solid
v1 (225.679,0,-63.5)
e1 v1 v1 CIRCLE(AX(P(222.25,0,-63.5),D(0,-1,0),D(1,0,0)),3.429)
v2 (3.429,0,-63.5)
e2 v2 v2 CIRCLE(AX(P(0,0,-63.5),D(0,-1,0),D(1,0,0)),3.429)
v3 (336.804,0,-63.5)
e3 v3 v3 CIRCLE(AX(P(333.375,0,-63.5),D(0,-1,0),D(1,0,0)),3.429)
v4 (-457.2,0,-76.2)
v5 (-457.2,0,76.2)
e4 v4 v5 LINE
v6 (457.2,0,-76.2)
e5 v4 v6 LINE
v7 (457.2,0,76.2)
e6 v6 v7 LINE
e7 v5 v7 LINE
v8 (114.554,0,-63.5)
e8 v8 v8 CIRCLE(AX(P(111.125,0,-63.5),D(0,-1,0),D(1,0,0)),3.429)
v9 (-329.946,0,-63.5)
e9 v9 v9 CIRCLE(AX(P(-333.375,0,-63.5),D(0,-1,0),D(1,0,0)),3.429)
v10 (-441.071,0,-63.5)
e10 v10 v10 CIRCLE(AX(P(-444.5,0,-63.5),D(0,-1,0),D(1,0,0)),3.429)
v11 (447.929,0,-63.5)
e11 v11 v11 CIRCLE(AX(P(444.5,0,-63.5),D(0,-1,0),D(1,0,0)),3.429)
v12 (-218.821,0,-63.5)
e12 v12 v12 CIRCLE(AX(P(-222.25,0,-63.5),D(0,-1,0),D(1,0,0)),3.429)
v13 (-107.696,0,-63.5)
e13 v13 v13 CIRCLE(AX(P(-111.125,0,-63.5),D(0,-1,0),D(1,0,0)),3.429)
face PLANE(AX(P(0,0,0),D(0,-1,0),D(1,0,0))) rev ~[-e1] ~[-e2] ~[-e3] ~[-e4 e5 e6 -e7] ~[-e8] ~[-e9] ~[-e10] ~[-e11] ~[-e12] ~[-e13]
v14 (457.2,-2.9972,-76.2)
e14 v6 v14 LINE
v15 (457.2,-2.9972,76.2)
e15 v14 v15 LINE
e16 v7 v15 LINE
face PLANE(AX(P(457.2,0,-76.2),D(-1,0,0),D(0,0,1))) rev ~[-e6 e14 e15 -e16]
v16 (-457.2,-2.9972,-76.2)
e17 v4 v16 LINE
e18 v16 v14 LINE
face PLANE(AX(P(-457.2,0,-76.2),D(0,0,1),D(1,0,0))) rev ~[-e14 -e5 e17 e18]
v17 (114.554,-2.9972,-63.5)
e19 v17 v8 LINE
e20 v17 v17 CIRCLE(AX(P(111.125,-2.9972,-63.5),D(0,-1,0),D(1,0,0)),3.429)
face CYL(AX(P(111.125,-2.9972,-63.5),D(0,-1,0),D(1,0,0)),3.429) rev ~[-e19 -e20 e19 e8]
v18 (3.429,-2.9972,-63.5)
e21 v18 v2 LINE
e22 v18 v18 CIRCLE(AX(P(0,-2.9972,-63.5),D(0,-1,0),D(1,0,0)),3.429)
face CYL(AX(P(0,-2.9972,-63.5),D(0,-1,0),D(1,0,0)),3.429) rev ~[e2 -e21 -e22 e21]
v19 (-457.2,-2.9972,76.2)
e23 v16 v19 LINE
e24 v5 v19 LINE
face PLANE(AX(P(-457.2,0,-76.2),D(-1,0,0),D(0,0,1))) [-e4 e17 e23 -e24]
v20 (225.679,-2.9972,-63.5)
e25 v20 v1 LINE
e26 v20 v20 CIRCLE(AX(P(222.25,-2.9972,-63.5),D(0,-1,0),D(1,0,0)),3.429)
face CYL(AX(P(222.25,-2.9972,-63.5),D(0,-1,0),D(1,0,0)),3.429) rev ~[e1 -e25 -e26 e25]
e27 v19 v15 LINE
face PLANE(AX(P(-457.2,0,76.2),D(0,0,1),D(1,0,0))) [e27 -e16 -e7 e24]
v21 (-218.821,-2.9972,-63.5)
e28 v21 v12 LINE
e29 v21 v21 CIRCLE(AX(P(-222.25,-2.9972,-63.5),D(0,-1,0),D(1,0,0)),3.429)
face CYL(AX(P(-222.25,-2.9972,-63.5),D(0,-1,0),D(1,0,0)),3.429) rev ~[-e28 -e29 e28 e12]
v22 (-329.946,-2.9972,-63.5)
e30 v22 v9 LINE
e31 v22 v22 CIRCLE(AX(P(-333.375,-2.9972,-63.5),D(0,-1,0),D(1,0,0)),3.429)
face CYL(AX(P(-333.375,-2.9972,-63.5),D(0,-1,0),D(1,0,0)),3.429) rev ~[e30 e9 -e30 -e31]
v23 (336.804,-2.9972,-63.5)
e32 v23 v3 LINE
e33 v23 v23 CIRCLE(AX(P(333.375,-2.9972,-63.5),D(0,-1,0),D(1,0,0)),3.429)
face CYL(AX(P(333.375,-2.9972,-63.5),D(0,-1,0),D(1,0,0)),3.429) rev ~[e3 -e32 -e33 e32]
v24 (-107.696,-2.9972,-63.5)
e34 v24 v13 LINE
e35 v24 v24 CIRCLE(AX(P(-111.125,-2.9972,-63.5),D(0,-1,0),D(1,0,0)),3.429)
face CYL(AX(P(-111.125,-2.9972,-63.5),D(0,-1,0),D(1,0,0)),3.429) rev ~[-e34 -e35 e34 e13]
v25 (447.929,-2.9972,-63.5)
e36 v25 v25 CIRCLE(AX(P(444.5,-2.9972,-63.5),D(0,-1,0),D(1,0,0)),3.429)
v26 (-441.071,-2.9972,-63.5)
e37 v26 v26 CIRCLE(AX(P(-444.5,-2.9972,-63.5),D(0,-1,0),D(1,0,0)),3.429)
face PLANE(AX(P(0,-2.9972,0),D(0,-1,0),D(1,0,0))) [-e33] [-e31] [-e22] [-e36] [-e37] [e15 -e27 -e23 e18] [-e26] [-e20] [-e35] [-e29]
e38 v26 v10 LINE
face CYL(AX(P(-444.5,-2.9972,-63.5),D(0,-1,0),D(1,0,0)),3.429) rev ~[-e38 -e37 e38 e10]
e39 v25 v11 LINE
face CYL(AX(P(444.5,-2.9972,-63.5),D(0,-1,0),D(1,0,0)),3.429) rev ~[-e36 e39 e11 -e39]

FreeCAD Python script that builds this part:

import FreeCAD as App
import Part
import Sketcher
from FreeCAD import Vector
Q = App.Units.Quantity

doc = App.newDocument("Part")
params = doc.addObject("Spreadsheet::Sheet", "Params")
for row, (alias, value) in enumerate([
    ("sketch1_width", "36 in"),
    ("sketch1_height", "6 in"),
    ("pad1_length", "0.118 in"),
    ("sketch2_diameter", "0.27 in"),
], start=1):
    params.set(f"A{row}", alias)
    params.set(f"B{row}", "=" + value)
    params.setAlias(f"B{row}", alias)

body = doc.addObject("PartDesign::Body", "Body")

# Sketch on XZ plane
sketch1 = doc.addObject("Sketcher::SketchObject", "Sketch")
body.addObject(sketch1)
sketch1.AttachmentSupport = (doc.XZ_Plane, [""])
sketch1.MapMode = "FlatFace"
sketch1.addGeometry(Part.LineSegment(Vector(-457, 76, 0), Vector(-457, -76, 0)), False)
sketch1.addGeometry(Part.LineSegment(Vector(-457, -76, 0), Vector(457, -76, 0)), False)
sketch1.addGeometry(Part.LineSegment(Vector(457, -76, 0), Vector(457, 76, 0)), False)
sketch1.addGeometry(Part.LineSegment(Vector(457, 76, 0), Vector(-457, 76, 0)), False)
sketch1.addConstraint(Sketcher.Constraint("Coincident", 0, 2, 1, 1))
sketch1.addConstraint(Sketcher.Constraint("Coincident", 1, 2, 2, 1))
sketch1.addConstraint(Sketcher.Constraint("Coincident", 2, 2, 3, 1))
sketch1.addConstraint(Sketcher.Constraint("Coincident", 3, 2, 0, 1))
sketch1.addConstraint(Sketcher.Constraint("Vertical", 0))
sketch1.addConstraint(Sketcher.Constraint("Horizontal", 1))
sketch1.addConstraint(Sketcher.Constraint("Vertical", 2))
sketch1.addConstraint(Sketcher.Constraint("Horizontal", 3))
sketch1.addConstraint(Sketcher.Constraint("Symmetric", 0, 2, 2, 2, -1, 1))
sketch1.addConstraint(Sketcher.Constraint("DistanceX", 1, 1, 1, 2, Q("36 in")))
sketch1.addConstraint(Sketcher.Constraint("DistanceY", 0, 2, 0, 1, Q("6 in")))
sketch1.setExpression("Constraints[9]", "Params.sketch1_width")
sketch1.setExpression("Constraints[10]", "Params.sketch1_height")
pad1 = doc.addObject("PartDesign::Pad", "Pad")
body.addObject(pad1)
pad1.Profile = sketch1
pad1.setExpression("Length", "Params.pad1_length")

# Sketch on XZ plane
sketch2 = doc.addObject("Sketcher::SketchObject", "Sketch001")
body.addObject(sketch2)
sketch2.AttachmentSupport = (doc.XZ_Plane, [""])
sketch2.MapMode = "FlatFace"
sketch2.AttachmentOffset = App.Placement(Vector(0, 0, 0.118 * 25.4), App.Rotation())
sketch2.addGeometry(Part.Circle(Vector(-444.5, -63.5, 0), Vector(0, 0, 1), 3.4), False)
sketch2.addGeometry(Part.Circle(Vector(-333.4, -63.5, 0), Vector(0, 0, 1), 3.4), False)
sketch2.addGeometry(Part.Circle(Vector(-222.2, -63.5, 0), Vector(0, 0, 1), 3.4), False)
sketch2.addGeometry(Part.Circle(Vector(-111.1, -63.5, 0), Vector(0, 0, 1), 3.4), False)
sketch2.addGeometry(Part.Circle(Vector(0, -63.5, 0), Vector(0, 0, 1), 3.4), False)
sketch2.addGeometry(Part.Circle(Vector(111.1, -63.5, 0), Vector(0, 0, 1), 3.4), False)
sketch2.addGeometry(Part.Circle(Vector(222.2, -63.5, 0), Vector(0, 0, 1), 3.4), False)
sketch2.addGeometry(Part.Circle(Vector(333.4, -63.5, 0), Vector(0, 0, 1), 3.4), False)
sketch2.addGeometry(Part.Circle(Vector(444.5, -63.5, 0), Vector(0, 0, 1), 3.4), False)
sketch2.addConstraint(Sketcher.Constraint("Equal", 0, 1))
sketch2.addConstraint(Sketcher.Constraint("Equal", 1, 2))
sketch2.addConstraint(Sketcher.Constraint("Equal", 2, 3))
sketch2.addConstraint(Sketcher.Constraint("Equal", 3, 4))
sketch2.addConstraint(Sketcher.Constraint("Equal", 4, 5))
sketch2.addConstraint(Sketcher.Constraint("Equal", 5, 6))
sketch2.addConstraint(Sketcher.Constraint("Equal", 6, 7))
sketch2.addConstraint(Sketcher.Constraint("Equal", 7, 8))
sketch2.addConstraint(Sketcher.Constraint("Symmetric", 3, 3, 5, 3, -2))
sketch2.addConstraint(Sketcher.Constraint("Symmetric", 2, 3, 6, 3, -2))
sketch2.addConstraint(Sketcher.Constraint("Symmetric", 1, 3, 7, 3, -2))
sketch2.addConstraint(Sketcher.Constraint("Symmetric", 0, 3, 8, 3, -2))
sketch2.addConstraint(Sketcher.Constraint("PointOnObject", 4, 3, -2))
sketch2.addConstraint(Sketcher.Constraint("Horizontal", 0, 3, 1, 3))
sketch2.addConstraint(Sketcher.Constraint("Horizontal", 1, 3, 2, 3))
sketch2.addConstraint(Sketcher.Constraint("Horizontal", 2, 3, 3, 3))
sketch2.addConstraint(Sketcher.Constraint("Horizontal", 3, 3, 4, 3))
sketch2.addConstraint(Sketcher.Constraint("Diameter", 0, Q("0.27 in")))
sketch2.addConstraint(Sketcher.Constraint("DistanceX", 0, 3, -1, 1, Q("17.5 in")))
sketch2.addConstraint(Sketcher.Constraint("DistanceY", 0, 3, -1, 1, Q("2.5 in")))
sketch2.addConstraint(Sketcher.Constraint("DistanceX", 1, 3, 5, 3, Q("17.5 in")))
sketch2.addConstraint(Sketcher.Constraint("DistanceX", 2, 3, 6, 3, Q("17.5 in")))
sketch2.addConstraint(Sketcher.Constraint("DistanceX", 1, 3, 3, 3, Q("8.75 in")))
sketch2.setExpression("Constraints[17]", "Params.sketch2_diameter")
pocket1 = doc.addObject("PartDesign::Pocket", "Pocket")
body.addObject(pocket1)
pocket1.Profile = sketch2
pocket1.Type = "ThroughAll"

doc.recompute()
